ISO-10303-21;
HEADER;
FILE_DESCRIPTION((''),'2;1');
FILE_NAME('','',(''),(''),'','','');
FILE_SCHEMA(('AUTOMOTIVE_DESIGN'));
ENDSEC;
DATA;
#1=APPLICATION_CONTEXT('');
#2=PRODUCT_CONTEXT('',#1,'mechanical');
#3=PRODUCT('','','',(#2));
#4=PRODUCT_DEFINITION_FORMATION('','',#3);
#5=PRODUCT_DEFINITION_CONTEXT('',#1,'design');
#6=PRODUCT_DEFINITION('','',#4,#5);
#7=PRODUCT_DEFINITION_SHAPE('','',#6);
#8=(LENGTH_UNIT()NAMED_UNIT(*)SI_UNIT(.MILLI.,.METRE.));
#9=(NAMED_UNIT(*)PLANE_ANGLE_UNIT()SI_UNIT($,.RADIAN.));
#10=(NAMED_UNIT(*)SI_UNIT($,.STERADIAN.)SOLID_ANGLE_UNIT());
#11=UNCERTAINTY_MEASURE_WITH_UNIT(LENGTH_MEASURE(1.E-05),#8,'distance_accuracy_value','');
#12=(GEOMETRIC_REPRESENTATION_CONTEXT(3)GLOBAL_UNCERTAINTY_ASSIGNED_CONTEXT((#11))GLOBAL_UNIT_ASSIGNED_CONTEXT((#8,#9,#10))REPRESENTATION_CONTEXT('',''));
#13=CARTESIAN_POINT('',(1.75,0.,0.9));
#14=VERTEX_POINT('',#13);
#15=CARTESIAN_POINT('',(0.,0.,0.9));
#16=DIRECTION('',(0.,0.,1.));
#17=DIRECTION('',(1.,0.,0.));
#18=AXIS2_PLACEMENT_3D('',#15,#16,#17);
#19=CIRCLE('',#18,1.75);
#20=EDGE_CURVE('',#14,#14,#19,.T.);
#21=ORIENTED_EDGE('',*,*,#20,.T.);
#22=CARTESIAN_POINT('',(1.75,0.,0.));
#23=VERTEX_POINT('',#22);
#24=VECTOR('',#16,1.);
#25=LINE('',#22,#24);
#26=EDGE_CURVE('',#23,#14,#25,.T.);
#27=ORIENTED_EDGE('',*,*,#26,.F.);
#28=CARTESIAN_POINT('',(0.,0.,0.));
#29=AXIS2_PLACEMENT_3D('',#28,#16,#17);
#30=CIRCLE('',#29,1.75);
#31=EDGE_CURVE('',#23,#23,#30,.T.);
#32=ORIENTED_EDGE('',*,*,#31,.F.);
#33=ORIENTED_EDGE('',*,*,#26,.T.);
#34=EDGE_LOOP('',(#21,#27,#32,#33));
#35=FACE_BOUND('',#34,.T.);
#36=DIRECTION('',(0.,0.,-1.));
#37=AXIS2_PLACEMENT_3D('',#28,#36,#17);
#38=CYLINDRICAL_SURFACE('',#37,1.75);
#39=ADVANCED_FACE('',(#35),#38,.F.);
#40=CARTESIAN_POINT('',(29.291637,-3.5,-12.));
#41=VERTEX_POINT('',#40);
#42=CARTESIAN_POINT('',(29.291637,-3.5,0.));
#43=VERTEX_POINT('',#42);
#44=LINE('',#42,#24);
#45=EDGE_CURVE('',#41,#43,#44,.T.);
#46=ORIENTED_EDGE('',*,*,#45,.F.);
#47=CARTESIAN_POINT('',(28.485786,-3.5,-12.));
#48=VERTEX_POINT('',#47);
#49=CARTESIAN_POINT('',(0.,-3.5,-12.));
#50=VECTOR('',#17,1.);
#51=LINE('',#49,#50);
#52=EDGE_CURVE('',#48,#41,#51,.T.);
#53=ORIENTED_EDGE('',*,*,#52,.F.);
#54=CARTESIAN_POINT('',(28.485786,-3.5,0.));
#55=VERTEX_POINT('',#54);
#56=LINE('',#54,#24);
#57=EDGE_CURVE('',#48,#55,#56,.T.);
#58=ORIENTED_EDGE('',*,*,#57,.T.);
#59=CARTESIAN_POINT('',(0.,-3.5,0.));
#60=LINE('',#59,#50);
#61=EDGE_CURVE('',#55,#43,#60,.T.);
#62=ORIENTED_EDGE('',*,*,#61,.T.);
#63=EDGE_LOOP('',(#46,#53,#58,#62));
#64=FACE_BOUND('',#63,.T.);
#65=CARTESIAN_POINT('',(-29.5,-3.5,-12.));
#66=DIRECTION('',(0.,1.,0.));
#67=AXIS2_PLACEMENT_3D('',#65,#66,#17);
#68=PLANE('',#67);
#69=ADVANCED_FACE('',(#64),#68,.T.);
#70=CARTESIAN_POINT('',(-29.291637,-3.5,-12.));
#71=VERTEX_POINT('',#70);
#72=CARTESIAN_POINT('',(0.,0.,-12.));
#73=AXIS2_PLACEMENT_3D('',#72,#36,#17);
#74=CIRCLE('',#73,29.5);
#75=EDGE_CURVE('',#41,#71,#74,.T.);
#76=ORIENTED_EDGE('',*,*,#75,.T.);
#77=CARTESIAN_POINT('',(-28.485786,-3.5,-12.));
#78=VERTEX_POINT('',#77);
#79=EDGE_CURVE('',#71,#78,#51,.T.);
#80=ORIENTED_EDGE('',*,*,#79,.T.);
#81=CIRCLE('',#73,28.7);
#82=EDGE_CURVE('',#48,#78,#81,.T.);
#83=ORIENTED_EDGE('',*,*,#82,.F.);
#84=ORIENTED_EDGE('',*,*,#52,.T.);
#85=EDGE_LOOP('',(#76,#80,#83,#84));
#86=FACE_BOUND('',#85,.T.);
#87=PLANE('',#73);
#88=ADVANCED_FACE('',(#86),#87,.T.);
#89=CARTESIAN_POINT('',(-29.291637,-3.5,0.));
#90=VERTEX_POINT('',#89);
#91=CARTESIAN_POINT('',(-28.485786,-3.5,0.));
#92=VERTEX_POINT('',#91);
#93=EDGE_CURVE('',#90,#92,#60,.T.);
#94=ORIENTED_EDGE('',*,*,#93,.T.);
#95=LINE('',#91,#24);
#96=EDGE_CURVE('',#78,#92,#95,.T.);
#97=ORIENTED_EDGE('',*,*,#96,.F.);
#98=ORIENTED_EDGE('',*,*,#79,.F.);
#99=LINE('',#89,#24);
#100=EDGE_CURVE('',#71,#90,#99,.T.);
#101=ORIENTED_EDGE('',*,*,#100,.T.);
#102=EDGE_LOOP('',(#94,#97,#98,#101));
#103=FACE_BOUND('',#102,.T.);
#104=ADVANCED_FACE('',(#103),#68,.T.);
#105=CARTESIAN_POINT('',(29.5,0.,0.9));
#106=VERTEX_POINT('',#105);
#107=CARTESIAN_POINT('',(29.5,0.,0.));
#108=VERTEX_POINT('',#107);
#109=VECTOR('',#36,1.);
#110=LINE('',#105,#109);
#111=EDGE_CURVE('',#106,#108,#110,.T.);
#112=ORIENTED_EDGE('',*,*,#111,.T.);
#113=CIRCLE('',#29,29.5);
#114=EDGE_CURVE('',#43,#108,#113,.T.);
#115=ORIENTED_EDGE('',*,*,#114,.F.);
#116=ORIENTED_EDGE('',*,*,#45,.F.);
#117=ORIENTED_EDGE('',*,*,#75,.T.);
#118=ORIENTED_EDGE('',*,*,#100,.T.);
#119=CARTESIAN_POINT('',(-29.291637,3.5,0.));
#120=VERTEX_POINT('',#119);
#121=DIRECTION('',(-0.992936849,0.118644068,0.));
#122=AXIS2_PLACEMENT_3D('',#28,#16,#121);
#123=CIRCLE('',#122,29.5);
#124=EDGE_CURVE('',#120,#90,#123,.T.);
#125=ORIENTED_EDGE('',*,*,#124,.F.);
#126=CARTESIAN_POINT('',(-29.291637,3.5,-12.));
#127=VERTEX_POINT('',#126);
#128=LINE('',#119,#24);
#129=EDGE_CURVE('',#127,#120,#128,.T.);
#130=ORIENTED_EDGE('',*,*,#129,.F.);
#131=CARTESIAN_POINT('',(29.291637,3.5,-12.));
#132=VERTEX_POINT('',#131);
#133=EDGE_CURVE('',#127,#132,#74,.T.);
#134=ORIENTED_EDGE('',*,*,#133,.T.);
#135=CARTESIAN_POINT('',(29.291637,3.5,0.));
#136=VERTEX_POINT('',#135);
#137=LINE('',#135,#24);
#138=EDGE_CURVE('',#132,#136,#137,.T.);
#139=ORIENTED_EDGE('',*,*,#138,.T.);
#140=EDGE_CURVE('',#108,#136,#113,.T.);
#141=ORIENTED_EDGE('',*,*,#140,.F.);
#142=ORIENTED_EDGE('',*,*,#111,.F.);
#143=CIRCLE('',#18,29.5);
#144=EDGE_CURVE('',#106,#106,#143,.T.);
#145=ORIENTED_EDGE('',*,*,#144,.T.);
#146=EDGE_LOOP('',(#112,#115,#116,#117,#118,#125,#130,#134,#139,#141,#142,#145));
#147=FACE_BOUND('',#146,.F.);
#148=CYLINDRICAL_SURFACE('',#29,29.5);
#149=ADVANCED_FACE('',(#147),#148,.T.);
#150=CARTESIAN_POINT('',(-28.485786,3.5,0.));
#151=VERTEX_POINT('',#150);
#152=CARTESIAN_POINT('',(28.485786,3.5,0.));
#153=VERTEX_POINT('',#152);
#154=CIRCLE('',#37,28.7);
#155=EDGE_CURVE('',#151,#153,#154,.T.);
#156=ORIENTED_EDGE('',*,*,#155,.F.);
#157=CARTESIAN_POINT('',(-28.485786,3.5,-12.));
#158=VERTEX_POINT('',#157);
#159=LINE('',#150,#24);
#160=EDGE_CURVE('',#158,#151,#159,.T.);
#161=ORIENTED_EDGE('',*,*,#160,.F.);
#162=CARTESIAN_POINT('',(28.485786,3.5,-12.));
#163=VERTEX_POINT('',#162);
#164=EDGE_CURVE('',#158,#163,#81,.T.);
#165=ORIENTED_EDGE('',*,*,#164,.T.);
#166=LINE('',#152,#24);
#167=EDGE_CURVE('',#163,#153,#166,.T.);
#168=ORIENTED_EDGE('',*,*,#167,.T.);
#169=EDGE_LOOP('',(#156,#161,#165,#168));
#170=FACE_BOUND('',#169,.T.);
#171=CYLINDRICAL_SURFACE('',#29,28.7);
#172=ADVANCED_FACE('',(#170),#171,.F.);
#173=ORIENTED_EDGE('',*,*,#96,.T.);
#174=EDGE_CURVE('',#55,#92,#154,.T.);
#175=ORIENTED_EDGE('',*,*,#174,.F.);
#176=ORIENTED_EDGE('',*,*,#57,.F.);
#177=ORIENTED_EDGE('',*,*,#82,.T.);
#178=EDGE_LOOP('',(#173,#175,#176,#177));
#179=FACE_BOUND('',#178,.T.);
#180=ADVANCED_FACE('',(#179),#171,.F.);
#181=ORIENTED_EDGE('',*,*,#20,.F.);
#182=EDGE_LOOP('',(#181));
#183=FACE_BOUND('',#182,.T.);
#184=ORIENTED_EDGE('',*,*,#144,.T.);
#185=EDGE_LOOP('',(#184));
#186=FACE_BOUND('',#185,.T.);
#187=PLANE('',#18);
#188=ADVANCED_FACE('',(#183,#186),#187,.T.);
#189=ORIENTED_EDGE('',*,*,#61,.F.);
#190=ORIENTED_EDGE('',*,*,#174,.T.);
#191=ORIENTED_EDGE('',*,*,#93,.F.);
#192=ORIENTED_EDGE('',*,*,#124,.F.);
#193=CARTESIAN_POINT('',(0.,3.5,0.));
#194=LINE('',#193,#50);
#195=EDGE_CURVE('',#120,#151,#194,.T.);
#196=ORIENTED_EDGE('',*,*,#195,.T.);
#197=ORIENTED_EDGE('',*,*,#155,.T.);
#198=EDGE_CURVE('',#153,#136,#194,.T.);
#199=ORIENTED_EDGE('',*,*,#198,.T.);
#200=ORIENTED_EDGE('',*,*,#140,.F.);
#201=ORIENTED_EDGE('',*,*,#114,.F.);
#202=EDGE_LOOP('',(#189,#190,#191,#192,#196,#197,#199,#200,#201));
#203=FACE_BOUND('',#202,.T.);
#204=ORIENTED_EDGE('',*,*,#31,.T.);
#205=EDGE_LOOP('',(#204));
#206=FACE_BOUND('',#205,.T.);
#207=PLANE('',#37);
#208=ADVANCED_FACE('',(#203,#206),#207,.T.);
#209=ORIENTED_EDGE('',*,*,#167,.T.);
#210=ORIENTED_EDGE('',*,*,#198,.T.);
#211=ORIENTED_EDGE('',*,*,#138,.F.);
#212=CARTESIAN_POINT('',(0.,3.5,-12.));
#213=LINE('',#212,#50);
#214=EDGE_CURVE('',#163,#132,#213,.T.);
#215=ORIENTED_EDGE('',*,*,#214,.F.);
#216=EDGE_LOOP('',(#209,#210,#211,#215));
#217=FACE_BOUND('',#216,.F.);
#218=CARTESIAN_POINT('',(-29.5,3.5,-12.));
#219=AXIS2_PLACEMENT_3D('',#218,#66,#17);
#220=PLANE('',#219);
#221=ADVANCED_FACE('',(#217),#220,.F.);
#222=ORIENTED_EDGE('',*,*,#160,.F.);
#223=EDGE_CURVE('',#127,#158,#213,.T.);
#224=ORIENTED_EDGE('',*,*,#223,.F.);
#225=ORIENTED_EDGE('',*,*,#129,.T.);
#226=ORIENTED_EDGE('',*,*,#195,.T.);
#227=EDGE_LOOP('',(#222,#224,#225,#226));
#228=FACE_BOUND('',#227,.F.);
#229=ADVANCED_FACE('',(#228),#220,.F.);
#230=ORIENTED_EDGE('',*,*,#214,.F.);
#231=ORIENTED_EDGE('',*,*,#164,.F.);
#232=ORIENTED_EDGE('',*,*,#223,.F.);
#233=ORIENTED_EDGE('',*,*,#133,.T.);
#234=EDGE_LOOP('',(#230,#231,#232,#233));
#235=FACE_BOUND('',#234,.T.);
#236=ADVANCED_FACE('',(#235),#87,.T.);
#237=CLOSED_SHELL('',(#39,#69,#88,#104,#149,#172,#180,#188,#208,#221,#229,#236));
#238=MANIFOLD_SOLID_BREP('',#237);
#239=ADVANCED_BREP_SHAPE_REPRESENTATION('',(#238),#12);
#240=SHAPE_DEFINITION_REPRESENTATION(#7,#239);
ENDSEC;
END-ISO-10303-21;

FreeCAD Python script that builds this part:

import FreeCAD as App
import Part
import Sketcher
from FreeCAD import Vector
Q = App.Units.Quantity

doc = App.newDocument("Part")
body = doc.addObject("PartDesign::Body", "Body")

sketch1 = body.newObject("Sketcher::SketchObject", "Sketch")
sketch1.AttachmentSupport = (doc.getObject("XY_Plane"), [""])
sketch1.MapMode = "FlatFace"
sketch1.addGeometry([
    Part.Circle(Vector(0, 0, 0), Vector(0, 0, 1), 29.5),
    Part.Circle(Vector(0, 0, 0), Vector(0, 0, 1), 1.8),
], False)
sketch1.addConstraint([
    Sketcher.Constraint("Coincident", 0, 3, -1, 1),
    Sketcher.Constraint("Coincident", 1, 3, -1, 1),
    Sketcher.Constraint("Diameter", 0, Q("59 mm")),
    Sketcher.Constraint("Diameter", 1, Q("3.5 mm")),
])
pad1 = body.newObject("PartDesign::Pad", "Pad")
pad1.Profile = sketch1
pad1.Length = 0.9

sketch2 = body.newObject("Sketcher::SketchObject", "Sketch001")
sketch2.AttachmentSupport = (doc.getObject("XY_Plane"), [""])
sketch2.MapMode = "FlatFace"
sketch2.addGeometry([
    Part.Circle(Vector(0, 0, 0), Vector(0, 0, 1), 30),
    Part.Circle(Vector(0, 0, 0), Vector(0, 0, 1), 29),
], False)
sketch2.addConstraint([
    Sketcher.Constraint("Coincident", 0, 3, -1, 1),
    Sketcher.Constraint("Coincident", 1, 3, -1, 1),
    Sketcher.Constraint("Diameter", 0, Q("59 mm")),
    Sketcher.Constraint("Diameter", 1, Q("57.4 mm")),
])
pad2 = body.newObject("PartDesign::Pad", "Pad001")
pad2.Profile = sketch2
pad2.Length = 12
pad2.Reversed = True

sketch3 = body.newObject("Sketcher::SketchObject", "Sketch002")
sketch3.AttachmentSupport = (doc.getObject("XY_Plane"), [""])
sketch3.MapMode = "FlatFace"
sketch3.AttachmentOffset = App.Placement(Vector(0, 0, -12), App.Rotation())
sketch3.addGeometry([
    Part.LineSegment(Vector(-30, -4, 0), Vector(-30, 4, 0)),
    Part.LineSegment(Vector(-30, 4, 0), Vector(30, 4, 0)),
    Part.LineSegment(Vector(30, 4, 0), Vector(30, -4, 0)),
    Part.LineSegment(Vector(30, -4, 0), Vector(-30, -4, 0)),
], False)
sketch3.addConstraint([
    Sketcher.Constraint("Coincident", 0, 2, 1, 1),
    Sketcher.Constraint("Coincident", 1, 2, 2, 1),
    Sketcher.Constraint("Coincident", 2, 2, 3, 1),
    Sketcher.Constraint("Coincident", 3, 2, 0, 1),
    Sketcher.Constraint("Vertical", 0),
    Sketcher.Constraint("Horizontal", 1),
    Sketcher.Constraint("Vertical", 2),
    Sketcher.Constraint("Horizontal", 3),
    Sketcher.Constraint("Symmetric", 0, 2, 2, 2, -1, 1),
    Sketcher.Constraint("DistanceX", 1, 1, 1, 2, Q("59 mm")),
    Sketcher.Constraint("DistanceY", 0, 1, 0, 2, Q("7 mm")),
])
pocket1 = body.newObject("PartDesign::Pocket", "Pocket")
pocket1.Profile = sketch3
pocket1.Length = 12
pocket1.Reversed = True

doc.recompute()
